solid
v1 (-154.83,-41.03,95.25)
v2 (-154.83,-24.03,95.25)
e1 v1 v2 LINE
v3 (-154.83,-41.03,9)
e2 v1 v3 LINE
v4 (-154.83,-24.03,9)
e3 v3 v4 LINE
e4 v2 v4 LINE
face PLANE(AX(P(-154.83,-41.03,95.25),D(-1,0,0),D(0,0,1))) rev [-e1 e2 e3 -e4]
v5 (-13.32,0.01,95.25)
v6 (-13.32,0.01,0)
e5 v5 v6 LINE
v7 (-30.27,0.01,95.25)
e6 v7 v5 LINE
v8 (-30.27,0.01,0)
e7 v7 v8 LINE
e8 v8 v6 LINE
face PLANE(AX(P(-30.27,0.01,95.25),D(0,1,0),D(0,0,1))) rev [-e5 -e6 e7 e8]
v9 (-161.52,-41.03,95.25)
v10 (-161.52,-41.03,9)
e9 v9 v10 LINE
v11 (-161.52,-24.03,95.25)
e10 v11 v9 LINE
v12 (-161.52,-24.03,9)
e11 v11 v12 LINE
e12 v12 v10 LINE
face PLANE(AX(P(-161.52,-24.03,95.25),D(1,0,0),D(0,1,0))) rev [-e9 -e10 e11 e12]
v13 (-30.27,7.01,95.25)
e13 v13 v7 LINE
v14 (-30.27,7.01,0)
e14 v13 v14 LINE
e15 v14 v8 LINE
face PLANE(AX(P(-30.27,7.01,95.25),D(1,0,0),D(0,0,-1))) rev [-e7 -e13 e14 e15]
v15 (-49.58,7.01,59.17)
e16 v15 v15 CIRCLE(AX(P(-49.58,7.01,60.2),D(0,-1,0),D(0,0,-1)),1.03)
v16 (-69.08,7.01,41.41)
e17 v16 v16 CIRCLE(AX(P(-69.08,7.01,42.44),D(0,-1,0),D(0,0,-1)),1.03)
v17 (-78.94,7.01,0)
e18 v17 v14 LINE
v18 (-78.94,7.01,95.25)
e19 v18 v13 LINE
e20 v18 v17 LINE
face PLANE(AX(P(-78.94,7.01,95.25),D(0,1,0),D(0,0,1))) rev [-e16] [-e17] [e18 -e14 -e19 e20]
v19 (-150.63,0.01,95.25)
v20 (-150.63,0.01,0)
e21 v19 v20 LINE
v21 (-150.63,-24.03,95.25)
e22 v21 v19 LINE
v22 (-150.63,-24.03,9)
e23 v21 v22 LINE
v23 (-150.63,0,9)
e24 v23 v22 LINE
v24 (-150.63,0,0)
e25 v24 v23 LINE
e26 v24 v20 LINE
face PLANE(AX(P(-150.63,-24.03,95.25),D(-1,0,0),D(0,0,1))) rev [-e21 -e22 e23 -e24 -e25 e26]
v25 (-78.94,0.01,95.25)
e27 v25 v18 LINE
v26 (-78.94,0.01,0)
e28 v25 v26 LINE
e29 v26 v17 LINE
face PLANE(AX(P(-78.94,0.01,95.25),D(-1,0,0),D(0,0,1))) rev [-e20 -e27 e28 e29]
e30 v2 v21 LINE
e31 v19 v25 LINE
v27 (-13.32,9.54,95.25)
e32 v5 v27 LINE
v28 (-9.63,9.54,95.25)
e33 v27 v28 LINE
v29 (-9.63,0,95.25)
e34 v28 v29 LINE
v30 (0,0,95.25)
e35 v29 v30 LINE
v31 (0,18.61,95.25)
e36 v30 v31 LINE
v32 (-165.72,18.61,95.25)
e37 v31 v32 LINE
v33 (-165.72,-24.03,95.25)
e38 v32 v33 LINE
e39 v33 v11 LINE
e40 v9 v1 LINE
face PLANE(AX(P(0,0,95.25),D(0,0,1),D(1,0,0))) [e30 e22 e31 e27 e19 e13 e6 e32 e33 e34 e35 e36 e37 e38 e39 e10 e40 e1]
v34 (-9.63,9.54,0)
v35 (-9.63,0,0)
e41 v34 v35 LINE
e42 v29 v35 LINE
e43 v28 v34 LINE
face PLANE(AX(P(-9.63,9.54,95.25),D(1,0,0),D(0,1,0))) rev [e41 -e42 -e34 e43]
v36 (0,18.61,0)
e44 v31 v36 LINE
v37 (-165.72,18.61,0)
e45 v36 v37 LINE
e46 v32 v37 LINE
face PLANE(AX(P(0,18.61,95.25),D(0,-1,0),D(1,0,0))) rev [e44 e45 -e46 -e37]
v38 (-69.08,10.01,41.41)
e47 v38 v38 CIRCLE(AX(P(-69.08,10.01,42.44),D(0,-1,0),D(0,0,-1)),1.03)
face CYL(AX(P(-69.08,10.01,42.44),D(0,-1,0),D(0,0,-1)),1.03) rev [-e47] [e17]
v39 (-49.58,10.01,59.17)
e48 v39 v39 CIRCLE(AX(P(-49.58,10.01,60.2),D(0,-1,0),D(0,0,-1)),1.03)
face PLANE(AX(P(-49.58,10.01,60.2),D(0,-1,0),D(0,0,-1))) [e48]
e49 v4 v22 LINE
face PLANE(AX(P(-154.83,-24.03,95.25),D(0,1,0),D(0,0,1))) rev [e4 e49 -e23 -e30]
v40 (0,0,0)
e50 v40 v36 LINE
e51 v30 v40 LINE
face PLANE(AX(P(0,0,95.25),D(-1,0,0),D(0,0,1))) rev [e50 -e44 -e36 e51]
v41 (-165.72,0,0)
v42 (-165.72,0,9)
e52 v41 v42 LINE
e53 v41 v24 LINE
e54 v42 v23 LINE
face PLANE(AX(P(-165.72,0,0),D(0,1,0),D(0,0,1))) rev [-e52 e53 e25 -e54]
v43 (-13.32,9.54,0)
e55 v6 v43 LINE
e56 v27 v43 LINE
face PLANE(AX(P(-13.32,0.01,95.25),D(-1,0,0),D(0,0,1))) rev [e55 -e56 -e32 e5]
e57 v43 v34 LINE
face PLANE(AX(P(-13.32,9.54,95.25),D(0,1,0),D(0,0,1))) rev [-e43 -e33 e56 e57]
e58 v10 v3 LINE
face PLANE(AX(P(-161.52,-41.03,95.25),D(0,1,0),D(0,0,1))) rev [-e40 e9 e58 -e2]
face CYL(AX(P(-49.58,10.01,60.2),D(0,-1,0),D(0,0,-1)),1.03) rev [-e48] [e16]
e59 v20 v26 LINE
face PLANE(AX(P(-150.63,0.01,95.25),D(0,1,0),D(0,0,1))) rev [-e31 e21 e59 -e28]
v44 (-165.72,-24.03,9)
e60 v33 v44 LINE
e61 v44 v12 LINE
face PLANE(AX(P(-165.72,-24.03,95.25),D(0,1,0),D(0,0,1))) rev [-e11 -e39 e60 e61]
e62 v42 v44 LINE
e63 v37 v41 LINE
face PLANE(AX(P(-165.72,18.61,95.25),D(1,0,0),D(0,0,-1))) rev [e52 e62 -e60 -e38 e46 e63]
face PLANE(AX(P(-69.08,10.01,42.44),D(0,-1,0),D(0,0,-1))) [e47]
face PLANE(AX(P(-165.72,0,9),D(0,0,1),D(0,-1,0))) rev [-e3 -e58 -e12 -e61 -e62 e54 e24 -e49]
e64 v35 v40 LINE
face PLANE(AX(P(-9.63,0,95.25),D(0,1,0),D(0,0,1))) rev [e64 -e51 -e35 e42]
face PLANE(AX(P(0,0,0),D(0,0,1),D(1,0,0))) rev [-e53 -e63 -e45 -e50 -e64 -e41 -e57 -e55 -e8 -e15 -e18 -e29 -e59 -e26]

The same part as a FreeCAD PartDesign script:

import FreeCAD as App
import Part
import Sketcher

V = App.Vector

doc = App.newDocument("Part")
body = doc.addObject("PartDesign::Body", "Body")

# Sketch on XY plane
sketch1 = doc.addObject("Sketcher::SketchObject", "Sketch")
body.addObject(sketch1)
sketch1.AttachmentSupport = (doc.XY_Plane, [""])
sketch1.MapMode = "FlatFace"
sketch1.addGeometry(Part.LineSegment(V(0, 0, 0), V(0, 18.6, 0)), False)
sketch1.addGeometry(Part.LineSegment(V(0, 18.6, 0), V(-165.7, 18.6, 0)), False)
sketch1.addGeometry(Part.LineSegment(V(-165.7, 18.6, 0), V(-165.7, -24, 0)), False)
sketch1.addGeometry(Part.LineSegment(V(-165.7, -24, 0), V(-161.5, -24, 0)), False)
sketch1.addGeometry(Part.LineSegment(V(-161.5, -24, 0), V(-161.5, -41, 0)), False)
sketch1.addGeometry(Part.LineSegment(V(-161.5, -41, 0), V(-154.8, -41, 0)), False)
sketch1.addGeometry(Part.LineSegment(V(-154.8, -41, 0), V(-154.8, -24, 0)), False)
sketch1.addGeometry(Part.LineSegment(V(-154.8, -24, 0), V(-150.6, -24, 0)), False)
sketch1.addGeometry(Part.LineSegment(V(-150.6, -24, 0), V(-150.6, 0, 0)), False)
sketch1.addGeometry(Part.LineSegment(V(-150.6, 0, 0), V(-78.9, 0, 0)), False)
sketch1.addGeometry(Part.LineSegment(V(-78.9, 0, 0), V(-78.9, 7, 0)), False)
sketch1.addGeometry(Part.LineSegment(V(-78.9, 7, 0), V(-30.3, 7, 0)), False)
sketch1.addGeometry(Part.LineSegment(V(-30.3, 7, 0), V(-30.3, 0, 0)), False)
sketch1.addGeometry(Part.LineSegment(V(-30.3, 0, 0), V(-13.3, 0, 0)), False)
sketch1.addGeometry(Part.LineSegment(V(-13.3, 0, 0), V(-13.3, 9.5, 0)), False)
sketch1.addGeometry(Part.LineSegment(V(-13.3, 9.5, 0), V(-9.6, 9.5, 0)), False)
sketch1.addGeometry(Part.LineSegment(V(-9.6, 9.5, 0), V(-9.6, 0, 0)), False)
sketch1.addGeometry(Part.LineSegment(V(-9.6, 0, 0), V(0, 0, 0)), False)
sketch1.addConstraint(Sketcher.Constraint("Coincident", 0, 2, 1, 1))
sketch1.addConstraint(Sketcher.Constraint("Coincident", 1, 2, 2, 1))
sketch1.addConstraint(Sketcher.Constraint("Coincident", 2, 2, 3, 1))
sketch1.addConstraint(Sketcher.Constraint("Coincident", 3, 2, 4, 1))
sketch1.addConstraint(Sketcher.Constraint("Coincident", 4, 2, 5, 1))
sketch1.addConstraint(Sketcher.Constraint("Coincident", 5, 2, 6, 1))
sketch1.addConstraint(Sketcher.Constraint("Coincident", 6, 2, 7, 1))
sketch1.addConstraint(Sketcher.Constraint("Coincident", 7, 2, 8, 1))
sketch1.addConstraint(Sketcher.Constraint("Coincident", 8, 2, 9, 1))
sketch1.addConstraint(Sketcher.Constraint("Coincident", 9, 2, 10, 1))
sketch1.addConstraint(Sketcher.Constraint("Coincident", 10, 2, 11, 1))
sketch1.addConstraint(Sketcher.Constraint("Coincident", 11, 2, 12, 1))
sketch1.addConstraint(Sketcher.Constraint("Coincident", 12, 2, 13, 1))
sketch1.addConstraint(Sketcher.Constraint("Coincident", 13, 2, 14, 1))
sketch1.addConstraint(Sketcher.Constraint("Coincident", 14, 2, 15, 1))
sketch1.addConstraint(Sketcher.Constraint("Coincident", 15, 2, 16, 1))
sketch1.addConstraint(Sketcher.Constraint("Coincident", 16, 2, 17, 1))
sketch1.addConstraint(Sketcher.Constraint("Coincident", 17, 2, 0, 1))
sketch1.addConstraint(Sketcher.Constraint("Vertical", 0))
sketch1.addConstraint(Sketcher.Constraint("Horizontal", 1))
sketch1.addConstraint(Sketcher.Constraint("Vertical", 2))
sketch1.addConstraint(Sketcher.Constraint("Horizontal", 3))
sketch1.addConstraint(Sketcher.Constraint("Vertical", 4))
sketch1.addConstraint(Sketcher.Constraint("Horizontal", 5))
sketch1.addConstraint(Sketcher.Constraint("Vertical", 6))
sketch1.addConstraint(Sketcher.Constraint("Horizontal", 7))
sketch1.addConstraint(Sketcher.Constraint("Vertical", 8))
sketch1.addConstraint(Sketcher.Constraint("Horizontal", 9))
sketch1.addConstraint(Sketcher.Constraint("Vertical", 10))
sketch1.addConstraint(Sketcher.Constraint("Horizontal", 11))
sketch1.addConstraint(Sketcher.Constraint("Vertical", 12))
sketch1.addConstraint(Sketcher.Constraint("Horizontal", 13))
sketch1.addConstraint(Sketcher.Constraint("Vertical", 14))
sketch1.addConstraint(Sketcher.Constraint("Horizontal", 15))
sketch1.addConstraint(Sketcher.Constraint("Vertical", 16))
sketch1.addConstraint(Sketcher.Constraint("Horizontal", 17))
sketch1.addConstraint(Sketcher.Constraint("Coincident", 17, 2, -1, 1))
sketch1.addConstraint(Sketcher.Constraint("Horizontal", 3, 2, 6, 2))
sketch1.addConstraint(Sketcher.Constraint("Horizontal", 9, 2, 12, 2))
sketch1.addConstraint(Sketcher.Constraint("Equal", 3, 7))
sketch1.addConstraint(Sketcher.Constraint("DistanceY", 4, 2, 4, 1, 17.0))
sketch1.addConstraint(Sketcher.Constraint("DistanceY", 10, 1, 10, 2, 7.0))
sketch1.addConstraint(Sketcher.Constraint("DistanceX", 3, 1, 3, 2, 4.2))
sketch1.addConstraint(Sketcher.Constraint("DistanceX", 1, 2, 1, 1, 165.72))
sketch1.addConstraint(Sketcher.Constraint("DistanceX", 5, 1, 5, 2, 6.69))
sketch1.addConstraint(Sketcher.Constraint("DistanceX", 9, 1, 9, 2, 71.69))
sketch1.addConstraint(Sketcher.Constraint("DistanceX", 11, 1, 11, 2, 48.67))
sketch1.addConstraint(Sketcher.Constraint("DistanceX", 13, 1, 13, 2, 16.95))
sketch1.addConstraint(Sketcher.Constraint("DistanceX", 15, 1, 15, 2, 3.69))
sketch1.addConstraint(Sketcher.Constraint("DistanceY", 0, 1, 0, 2, 18.61))
sketch1.addConstraint(Sketcher.Constraint("DistanceY", 2, 2, 2, 1, 42.64))
sketch1.addConstraint(Sketcher.Constraint("DistanceY", 8, 1, 8, 2, 24.04))
sketch1.addConstraint(Sketcher.Constraint("DistanceY", 14, 1, 14, 2, 9.53))
pad1 = doc.addObject("PartDesign::Pad", "Pad")
body.addObject(pad1)
pad1.Profile = sketch1
pad1.Length = 95.25

# Sketch on YZ plane
sketch2 = doc.addObject("Sketcher::SketchObject", "Sketch001")
body.addObject(sketch2)
sketch2.AttachmentSupport = (doc.YZ_Plane, [""])
sketch2.MapMode = "FlatFace"
sketch2.AttachmentOffset = App.Placement(V(0, 0, -150.63), App.Rotation())
sketch2.addGeometry(Part.LineSegment(V(0, 9, 0), V(-41, 9, 0)), False)
sketch2.addGeometry(Part.LineSegment(V(-41, 9, 0), V(-41, 0, 0)), False)
sketch2.addGeometry(Part.LineSegment(V(-41, 0, 0), V(0, 0, 0)), False)
sketch2.addGeometry(Part.LineSegment(V(0, 0, 0), V(0, 9, 0)), False)
sketch2.addConstraint(Sketcher.Constraint("Coincident", 0, 2, 1, 1))
sketch2.addConstraint(Sketcher.Constraint("Coincident", 1, 2, 2, 1))
sketch2.addConstraint(Sketcher.Constraint("Coincident", 2, 2, 3, 1))
sketch2.addConstraint(Sketcher.Constraint("Coincident", 3, 2, 0, 1))
sketch2.addConstraint(Sketcher.Constraint("Horizontal", 0))
sketch2.addConstraint(Sketcher.Constraint("Vertical", 1))
sketch2.addConstraint(Sketcher.Constraint("Horizontal", 2))
sketch2.addConstraint(Sketcher.Constraint("Vertical", 3))
sketch2.addConstraint(Sketcher.Constraint("Coincident", 2, 2, -1, 1))
sketch2.addConstraint(Sketcher.Constraint("DistanceY", 1, 2, 1, 1, 9.0))
sketch2.addConstraint(Sketcher.Constraint("DistanceX", 0, 2, 0, 1, 41.03))
pocket1 = doc.addObject("PartDesign::Pocket", "Pocket")
body.addObject(pocket1)
pocket1.Profile = sketch2
pocket1.Type = "ThroughAll"

# Sketch on XZ plane
sketch3 = doc.addObject("Sketcher::SketchObject", "Sketch002")
body.addObject(sketch3)
sketch3.AttachmentSupport = (doc.XZ_Plane, [""])
sketch3.MapMode = "FlatFace"
sketch3.AttachmentOffset = App.Placement(V(0, 0, -7.01), App.Rotation())
sketch3.addGeometry(Part.Circle(V(-69.1, 42.4, 0), V(0, 0, 1), 1), False)
sketch3.addGeometry(Part.Circle(V(-49.6, 60.2, 0), V(0, 0, 1), 1), False)
sketch3.addConstraint(Sketcher.Constraint("Equal", 0, 1))
sketch3.addConstraint(Sketcher.Constraint("Diameter", 0, 2.06))
sketch3.addConstraint(Sketcher.Constraint("DistanceY", -1, 1, 1, 3, 60.2))
sketch3.addConstraint(Sketcher.Constraint("DistanceX", 0, 3, 1, 3, 19.5))
sketch3.addConstraint(Sketcher.Constraint("DistanceX", 0, 3, -1, 1, 69.08))
sketch3.addConstraint(Sketcher.Constraint("DistanceY", -1, 1, 0, 3, 42.44))
pocket2 = doc.addObject("PartDesign::Pocket", "Pocket001")
body.addObject(pocket2)
pocket2.Profile = sketch3
pocket2.Length = 3

doc.recompute()
